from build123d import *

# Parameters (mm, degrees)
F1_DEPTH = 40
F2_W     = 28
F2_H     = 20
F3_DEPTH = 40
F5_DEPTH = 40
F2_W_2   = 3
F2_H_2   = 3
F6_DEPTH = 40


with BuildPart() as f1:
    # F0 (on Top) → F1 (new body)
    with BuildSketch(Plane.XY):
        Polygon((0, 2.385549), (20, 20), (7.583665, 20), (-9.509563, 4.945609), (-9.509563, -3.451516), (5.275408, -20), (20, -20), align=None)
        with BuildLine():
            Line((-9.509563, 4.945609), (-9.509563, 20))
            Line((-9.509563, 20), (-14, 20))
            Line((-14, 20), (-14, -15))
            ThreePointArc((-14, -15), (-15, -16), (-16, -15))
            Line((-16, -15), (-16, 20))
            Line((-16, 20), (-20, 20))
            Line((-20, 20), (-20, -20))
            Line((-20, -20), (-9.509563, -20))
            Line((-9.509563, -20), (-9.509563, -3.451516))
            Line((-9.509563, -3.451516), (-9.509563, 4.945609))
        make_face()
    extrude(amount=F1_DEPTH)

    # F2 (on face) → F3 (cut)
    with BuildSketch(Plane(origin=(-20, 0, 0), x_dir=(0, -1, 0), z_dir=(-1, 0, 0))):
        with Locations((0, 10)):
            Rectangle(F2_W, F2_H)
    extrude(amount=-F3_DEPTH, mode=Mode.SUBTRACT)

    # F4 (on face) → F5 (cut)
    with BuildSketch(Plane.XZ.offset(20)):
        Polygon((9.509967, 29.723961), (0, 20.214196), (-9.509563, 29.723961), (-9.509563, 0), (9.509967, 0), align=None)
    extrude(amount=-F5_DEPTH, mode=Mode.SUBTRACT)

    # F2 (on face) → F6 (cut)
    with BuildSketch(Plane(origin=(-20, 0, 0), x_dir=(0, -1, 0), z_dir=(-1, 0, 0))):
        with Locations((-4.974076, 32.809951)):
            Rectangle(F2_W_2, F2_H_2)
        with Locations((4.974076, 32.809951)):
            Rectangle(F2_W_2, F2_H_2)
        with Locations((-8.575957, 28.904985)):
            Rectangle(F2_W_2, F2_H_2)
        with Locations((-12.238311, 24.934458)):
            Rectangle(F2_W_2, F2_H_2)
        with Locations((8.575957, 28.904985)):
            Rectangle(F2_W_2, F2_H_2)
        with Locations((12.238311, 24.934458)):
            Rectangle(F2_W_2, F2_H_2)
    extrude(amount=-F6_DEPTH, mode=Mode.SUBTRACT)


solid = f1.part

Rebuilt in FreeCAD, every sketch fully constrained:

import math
import FreeCAD as App
import Part
import Sketcher
Q = App.Units.Quantity


def add_polygon(sketch, points):
    """Adds a closed chain of lines whose ends are joined by coincident constraints."""
    first, n = sketch.GeometryCount, len(points)
    for a, b in zip(points, points[1:] + points[:1]):
        sketch.addGeometry(Part.LineSegment(App.Vector(*a, 0), App.Vector(*b, 0)), False)
    for i in range(n):
        sketch.addConstraint(Sketcher.Constraint("Coincident", first + i, 2, first + (i + 1) % n, 1))

doc = App.newDocument("Part")
body = doc.addObject("PartDesign::Body", "Body")

# Sketch on XY plane
sketch1 = body.newObject("Sketcher::SketchObject", "Sketch")
sketch1.AttachmentSupport = (doc.getObject("XY_Plane"), [""])
sketch1.MapMode = "FlatFace"
sketch1.addGeometry([
    Part.LineSegment(App.Vector(20, -20, 0), App.Vector(0, 2.4, 0)),  # 0
    Part.LineSegment(App.Vector(0, 2.4, 0), App.Vector(20, 20, 0)),  # 1
    Part.LineSegment(App.Vector(20, 20, 0), App.Vector(7.6, 20, 0)),  # 2
    Part.LineSegment(App.Vector(7.6, 20, 0), App.Vector(-9.5, 4.9, 0)),  # 3
    Part.LineSegment(App.Vector(-9.5, 4.9, 0), App.Vector(-9.5, 20, 0)),  # 4
    Part.LineSegment(App.Vector(-9.5, 20, 0), App.Vector(-14, 20, 0)),  # 5
    Part.LineSegment(App.Vector(-14, 20, 0), App.Vector(-14, -15, 0)),  # 6
    Part.ArcOfCircle(Part.Circle(App.Vector(-15, -15, 0), App.Vector(0, 0, 1), 1), math.radians(180), math.radians(360)),  # 7
    Part.LineSegment(App.Vector(-16, -15, 0), App.Vector(-16, 20, 0)),  # 8
    Part.LineSegment(App.Vector(-16, 20, 0), App.Vector(-20, 20, 0)),  # 9
    Part.LineSegment(App.Vector(-20, 20, 0), App.Vector(-20, -20, 0)),  # 10
    Part.LineSegment(App.Vector(-20, -20, 0), App.Vector(-9.5, -20, 0)),  # 11
    Part.LineSegment(App.Vector(-9.5, -20, 0), App.Vector(-9.5, -3.5, 0)),  # 12
    Part.LineSegment(App.Vector(-9.5, -3.5, 0), App.Vector(5.3, -20, 0)),  # 13
    Part.LineSegment(App.Vector(5.3, -20, 0), App.Vector(20, -20, 0)),  # 14
], False)
sketch1.addConstraint([
    Sketcher.Constraint("Coincident", 0, 2, 1, 1),
    Sketcher.Constraint("Coincident", 1, 2, 2, 1),
    Sketcher.Constraint("Coincident", 2, 2, 3, 1),
    Sketcher.Constraint("Coincident", 3, 2, 4, 1),
    Sketcher.Constraint("Coincident", 4, 2, 5, 1),
    Sketcher.Constraint("Coincident", 5, 2, 6, 1),
    Sketcher.Constraint("Tangent", 6, 2, 7, 2),
    Sketcher.Constraint("Tangent", 7, 1, 8, 1),
    Sketcher.Constraint("Coincident", 8, 2, 9, 1),
    Sketcher.Constraint("Coincident", 9, 2, 10, 1),
    Sketcher.Constraint("Coincident", 10, 2, 11, 1),
    Sketcher.Constraint("Coincident", 11, 2, 12, 1),
    Sketcher.Constraint("Coincident", 12, 2, 13, 1),
    Sketcher.Constraint("Coincident", 13, 2, 14, 1),
    Sketcher.Constraint("Coincident", 14, 2, 0, 1),
    Sketcher.Constraint("Horizontal", 2),
    Sketcher.Constraint("Vertical", 4),
    Sketcher.Constraint("Horizontal", 5),
    Sketcher.Constraint("Vertical", 6),
    Sketcher.Constraint("Vertical", 8),
    Sketcher.Constraint("Horizontal", 9),
    Sketcher.Constraint("Vertical", 10),
    Sketcher.Constraint("Horizontal", 11),
    Sketcher.Constraint("Vertical", 12),
    Sketcher.Constraint("Horizontal", 14),
    Sketcher.Constraint("Symmetric", 1, 2, 10, 2, -1, 1),
    Sketcher.Constraint("Symmetric", 9, 2, 14, 2, -1, 1),
    Sketcher.Constraint("Symmetric", 4, 2, 11, 2, -1),
    Sketcher.Constraint("PointOnObject", 0, 2, -2),
    Sketcher.Constraint("Parallel", 1, 3),
    Sketcher.Constraint("Parallel", 0, 13),
    Sketcher.Constraint("Horizontal", 5, 2, 8, 2),
    Sketcher.Constraint("Radius", 7, Q("1 mm")),
    Sketcher.Constraint("DistanceX", 9, 2, 9, 1, Q("4 mm")),
    Sketcher.Constraint("DistanceY", 6, 2, 6, 1, Q("35 mm")),
    Sketcher.Constraint("DistanceY", 10, 2, 10, 1, Q("40 mm")),
    Sketcher.Constraint("DistanceX", 7, 3, -1, 1, Q("15 mm")),
    Sketcher.Constraint("DistanceY", 4, 1, 4, 2, Q("15.054391 mm")),
    Sketcher.Constraint("Distance", 0, Q("30.018541 mm")),
    Sketcher.Constraint("DistanceX", 2, 2, 2, 1, Q("12.416335 mm")),
    Sketcher.Constraint("DistanceX", 14, 1, 14, 2, Q("14.724592 mm")),
])
pad1 = body.newObject("PartDesign::Pad", "Pad")
pad1.Profile = sketch1
pad1.Length = 40

# Sketch on YZ plane
sketch2 = body.newObject("Sketcher::SketchObject", "Sketch001")
sketch2.AttachmentSupport = (doc.getObject("YZ_Plane"), [""])
sketch2.MapMode = "FlatFace"
sketch2.AttachmentOffset = App.Placement(App.Vector(0, 0, -20), App.Rotation())
add_polygon(sketch2, [(14, 20), (14, 0), (-14, 0), (-14, 20)])  # lines 0-3
sketch2.addConstraint([
    Sketcher.Constraint("Vertical", 0),
    Sketcher.Constraint("Horizontal", 1),
    Sketcher.Constraint("Vertical", 2),
    Sketcher.Constraint("Horizontal", 3),
    Sketcher.Constraint("Symmetric", 0, 2, 1, 2, -1, 1),
    Sketcher.Constraint("DistanceX", 1, 2, 1, 1, Q("28 mm")),
    Sketcher.Constraint("DistanceY", 0, 2, 0, 1, Q("20 mm")),
])
pocket1 = body.newObject("PartDesign::Pocket", "Pocket")
pocket1.Profile = sketch2
pocket1.Length = 40
pocket1.Reversed = True

# Sketch on XZ plane
sketch3 = body.newObject("Sketcher::SketchObject", "Sketch002")
sketch3.AttachmentSupport = (doc.getObject("XZ_Plane"), [""])
sketch3.MapMode = "FlatFace"
sketch3.AttachmentOffset = App.Placement(App.Vector(0, 0, 20), App.Rotation())
add_polygon(sketch3, [(10, 30), (0, 20), (-10, 30), (-10, 0), (10, 0)])  # lines 0-4
sketch3.addConstraint([
    Sketcher.Constraint("Vertical", 2),
    Sketcher.Constraint("Horizontal", 3),
    Sketcher.Constraint("Vertical", 4),
    Sketcher.Constraint("PointOnObject", 0, 2, -2),
    Sketcher.Constraint("PointOnObject", 2, 2, -1),
    Sketcher.Constraint("Perpendicular", 0, 1),
    Sketcher.Constraint("Horizontal", 1, 2, 4, 2),
    Sketcher.Constraint("DistanceX", 3, 1, 3, 2, Q("19.01953 mm")),
    Sketcher.Constraint("DistanceY", 2, 2, 2, 1, Q("29.723961 mm")),
    Sketcher.Constraint("Distance", 0, Q("13.448981 mm")),
])
pocket2 = body.newObject("PartDesign::Pocket", "Pocket001")
pocket2.Profile = sketch3
pocket2.Length = 40

# Sketch on YZ plane
sketch4 = body.newObject("Sketcher::SketchObject", "Sketch003")
sketch4.AttachmentSupport = (doc.getObject("YZ_Plane"), [""])
sketch4.MapMode = "FlatFace"
sketch4.AttachmentOffset = App.Placement(App.Vector(0, 0, -20), App.Rotation())
add_polygon(sketch4, [(6.5, 34.3), (6.5, 31.3), (3.5, 31.3), (3.5, 34.3)])  # lines 0-3
add_polygon(sketch4, [(-3.5, 34.3), (-3.5, 31.3), (-6.5, 31.3), (-6.5, 34.3)])  # lines 4-7
add_polygon(sketch4, [(10.1, 30.4), (10.1, 27.4), (7.1, 27.4), (7.1, 30.4)])  # lines 8-11
add_polygon(sketch4, [(13.7, 26.4), (13.7, 23.4), (10.7, 23.4), (10.7, 26.4)])  # lines 12-15
add_polygon(sketch4, [(-7.1, 30.4), (-7.1, 27.4), (-10.1, 27.4), (-10.1, 30.4)])  # lines 16-19
add_polygon(sketch4, [(-10.7, 26.4), (-10.7, 23.4), (-13.7, 23.4), (-13.7, 26.4)])  # lines 20-23
sketch4.addConstraint([
    Sketcher.Constraint("Vertical", 0),
    Sketcher.Constraint("Horizontal", 1),
    Sketcher.Constraint("Vertical", 2),
    Sketcher.Constraint("Horizontal", 3),
    Sketcher.Constraint("Vertical", 4),
    Sketcher.Constraint("Horizontal", 5),
    Sketcher.Constraint("Vertical", 6),
    Sketcher.Constraint("Horizontal", 7),
    Sketcher.Constraint("Vertical", 8),
    Sketcher.Constraint("Horizontal", 9),
    Sketcher.Constraint("Vertical", 10),
    Sketcher.Constraint("Horizontal", 11),
    Sketcher.Constraint("Vertical", 12),
    Sketcher.Constraint("Horizontal", 13),
    Sketcher.Constraint("Vertical", 14),
    Sketcher.Constraint("Horizontal", 15),
    Sketcher.Constraint("Vertical", 16),
    Sketcher.Constraint("Horizontal", 17),
    Sketcher.Constraint("Vertical", 18),
    Sketcher.Constraint("Horizontal", 19),
    Sketcher.Constraint("Vertical", 20),
    Sketcher.Constraint("Horizontal", 21),
    Sketcher.Constraint("Vertical", 22),
    Sketcher.Constraint("Horizontal", 23),
    Sketcher.Constraint("Symmetric", 1, 2, 4, 2, -2),
    Sketcher.Constraint("Symmetric", 3, 2, 6, 2, -2),
    Sketcher.Constraint("Symmetric", 9, 2, 16, 2, -2),
    Sketcher.Constraint("Symmetric", 11, 2, 18, 2, -2),
    Sketcher.Constraint("Symmetric", 13, 2, 20, 2, -2),
    Sketcher.Constraint("Symmetric", 15, 2, 22, 2, -2),
    Sketcher.Constraint("Equal", 7, 9),
    Sketcher.Constraint("Equal", 11, 13),
    Sketcher.Constraint("Equal", 23, 0),
    Sketcher.Constraint("Equal", 6, 8),
    Sketcher.Constraint("Equal", 10, 12),
    Sketcher.Constraint("DistanceX", 1, 2, 1, 1, Q("3 mm")),
    Sketcher.Constraint("DistanceY", -1, 1, 0, 2, Q("31.309951 mm")),
    Sketcher.Constraint("DistanceX", -1, 1, 12, 2, Q("13.738311 mm")),
    Sketcher.Constraint("DistanceX", 0, 2, 8, 2, Q("3.601881 mm")),
    Sketcher.Constraint("DistanceX", -1, 1, 0, 2, Q("6.474076 mm")),
    Sketcher.Constraint("DistanceY", -1, 1, 8, 2, Q("27.404985 mm")),
    Sketcher.Constraint("DistanceY", -1, 1, 12, 2, Q("23.434458 mm")),
])
pocket3 = body.newObject("PartDesign::Pocket", "Pocket002")
pocket3.Profile = sketch4
pocket3.Length = 40
pocket3.Reversed = True

doc.recompute()
